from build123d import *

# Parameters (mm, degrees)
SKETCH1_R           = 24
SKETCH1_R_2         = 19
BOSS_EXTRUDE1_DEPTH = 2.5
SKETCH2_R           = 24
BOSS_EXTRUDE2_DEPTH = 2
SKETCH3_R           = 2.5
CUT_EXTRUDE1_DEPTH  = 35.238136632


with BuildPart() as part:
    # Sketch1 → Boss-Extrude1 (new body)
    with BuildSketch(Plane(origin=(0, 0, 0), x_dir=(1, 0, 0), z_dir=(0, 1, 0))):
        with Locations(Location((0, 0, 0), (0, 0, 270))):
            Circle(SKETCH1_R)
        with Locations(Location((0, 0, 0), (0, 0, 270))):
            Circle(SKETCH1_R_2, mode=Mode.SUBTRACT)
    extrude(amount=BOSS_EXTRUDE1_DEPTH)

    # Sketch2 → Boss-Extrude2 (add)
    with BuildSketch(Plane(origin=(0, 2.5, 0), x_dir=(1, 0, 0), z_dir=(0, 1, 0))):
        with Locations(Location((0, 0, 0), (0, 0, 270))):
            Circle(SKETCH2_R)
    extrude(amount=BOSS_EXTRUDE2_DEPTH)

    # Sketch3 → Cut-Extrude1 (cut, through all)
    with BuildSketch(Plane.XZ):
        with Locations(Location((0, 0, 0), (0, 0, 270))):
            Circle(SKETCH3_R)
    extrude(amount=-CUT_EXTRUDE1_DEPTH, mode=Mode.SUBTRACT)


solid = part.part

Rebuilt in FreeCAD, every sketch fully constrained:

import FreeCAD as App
import Part
import Sketcher
from FreeCAD import Vector

doc = App.newDocument("Part")
body = doc.addObject("PartDesign::Body", "Body")

sketch1 = body.newObject("Sketcher::SketchObject", "Sketch")
sketch1.AttachmentSupport = (doc.getObject("XZ_Plane"), [""])
sketch1.MapMode = "FlatFace"
sketch1.addGeometry(Part.Circle(Vector(0, 0, 0), Vector(0, 0, 1), 24), False)
sketch1.addGeometry(Part.Circle(Vector(0, 0, 0), Vector(0, 0, 1), 19), False)
sketch1.addConstraint(Sketcher.Constraint("Coincident", 0, 3, -1, 1))
sketch1.addConstraint(Sketcher.Constraint("Coincident", 1, 3, -1, 1))
sketch1.addConstraint(Sketcher.Constraint("Diameter", 0, 48.0))
sketch1.addConstraint(Sketcher.Constraint("Diameter", 1, 38.0))
pad1 = body.newObject("PartDesign::Pad", "Pad")
pad1.Profile = sketch1
pad1.Length = 2.5
pad1.Reversed = True

sketch2 = body.newObject("Sketcher::SketchObject", "Sketch001")
sketch2.AttachmentSupport = (doc.getObject("XZ_Plane"), [""])
sketch2.MapMode = "FlatFace"
sketch2.AttachmentOffset = App.Placement(Vector(0, 0, -2.5), App.Rotation())
sketch2.addGeometry(Part.Circle(Vector(0, 0, 0), Vector(0, 0, 1), 24), False)
sketch2.addConstraint(Sketcher.Constraint("Coincident", 0, 3, -1, 1))
sketch2.addConstraint(Sketcher.Constraint("Diameter", 0, 48.0))
pad2 = body.newObject("PartDesign::Pad", "Pad001")
pad2.Profile = sketch2
pad2.Length = 2
pad2.Reversed = True

sketch3 = body.newObject("Sketcher::SketchObject", "Sketch002")
sketch3.AttachmentSupport = (doc.getObject("XZ_Plane"), [""])
sketch3.MapMode = "FlatFace"
sketch3.addGeometry(Part.Circle(Vector(0, 0, 0), Vector(0, 0, 1), 2.5), False)
sketch3.addConstraint(Sketcher.Constraint("Coincident", 0, 3, -1, 1))
sketch3.addConstraint(Sketcher.Constraint("Diameter", 0, 5.0))
pocket1 = body.newObject("PartDesign::Pocket", "Pocket")
pocket1.Profile = sketch3
pocket1.Type = "ThroughAll"

doc.recompute()
